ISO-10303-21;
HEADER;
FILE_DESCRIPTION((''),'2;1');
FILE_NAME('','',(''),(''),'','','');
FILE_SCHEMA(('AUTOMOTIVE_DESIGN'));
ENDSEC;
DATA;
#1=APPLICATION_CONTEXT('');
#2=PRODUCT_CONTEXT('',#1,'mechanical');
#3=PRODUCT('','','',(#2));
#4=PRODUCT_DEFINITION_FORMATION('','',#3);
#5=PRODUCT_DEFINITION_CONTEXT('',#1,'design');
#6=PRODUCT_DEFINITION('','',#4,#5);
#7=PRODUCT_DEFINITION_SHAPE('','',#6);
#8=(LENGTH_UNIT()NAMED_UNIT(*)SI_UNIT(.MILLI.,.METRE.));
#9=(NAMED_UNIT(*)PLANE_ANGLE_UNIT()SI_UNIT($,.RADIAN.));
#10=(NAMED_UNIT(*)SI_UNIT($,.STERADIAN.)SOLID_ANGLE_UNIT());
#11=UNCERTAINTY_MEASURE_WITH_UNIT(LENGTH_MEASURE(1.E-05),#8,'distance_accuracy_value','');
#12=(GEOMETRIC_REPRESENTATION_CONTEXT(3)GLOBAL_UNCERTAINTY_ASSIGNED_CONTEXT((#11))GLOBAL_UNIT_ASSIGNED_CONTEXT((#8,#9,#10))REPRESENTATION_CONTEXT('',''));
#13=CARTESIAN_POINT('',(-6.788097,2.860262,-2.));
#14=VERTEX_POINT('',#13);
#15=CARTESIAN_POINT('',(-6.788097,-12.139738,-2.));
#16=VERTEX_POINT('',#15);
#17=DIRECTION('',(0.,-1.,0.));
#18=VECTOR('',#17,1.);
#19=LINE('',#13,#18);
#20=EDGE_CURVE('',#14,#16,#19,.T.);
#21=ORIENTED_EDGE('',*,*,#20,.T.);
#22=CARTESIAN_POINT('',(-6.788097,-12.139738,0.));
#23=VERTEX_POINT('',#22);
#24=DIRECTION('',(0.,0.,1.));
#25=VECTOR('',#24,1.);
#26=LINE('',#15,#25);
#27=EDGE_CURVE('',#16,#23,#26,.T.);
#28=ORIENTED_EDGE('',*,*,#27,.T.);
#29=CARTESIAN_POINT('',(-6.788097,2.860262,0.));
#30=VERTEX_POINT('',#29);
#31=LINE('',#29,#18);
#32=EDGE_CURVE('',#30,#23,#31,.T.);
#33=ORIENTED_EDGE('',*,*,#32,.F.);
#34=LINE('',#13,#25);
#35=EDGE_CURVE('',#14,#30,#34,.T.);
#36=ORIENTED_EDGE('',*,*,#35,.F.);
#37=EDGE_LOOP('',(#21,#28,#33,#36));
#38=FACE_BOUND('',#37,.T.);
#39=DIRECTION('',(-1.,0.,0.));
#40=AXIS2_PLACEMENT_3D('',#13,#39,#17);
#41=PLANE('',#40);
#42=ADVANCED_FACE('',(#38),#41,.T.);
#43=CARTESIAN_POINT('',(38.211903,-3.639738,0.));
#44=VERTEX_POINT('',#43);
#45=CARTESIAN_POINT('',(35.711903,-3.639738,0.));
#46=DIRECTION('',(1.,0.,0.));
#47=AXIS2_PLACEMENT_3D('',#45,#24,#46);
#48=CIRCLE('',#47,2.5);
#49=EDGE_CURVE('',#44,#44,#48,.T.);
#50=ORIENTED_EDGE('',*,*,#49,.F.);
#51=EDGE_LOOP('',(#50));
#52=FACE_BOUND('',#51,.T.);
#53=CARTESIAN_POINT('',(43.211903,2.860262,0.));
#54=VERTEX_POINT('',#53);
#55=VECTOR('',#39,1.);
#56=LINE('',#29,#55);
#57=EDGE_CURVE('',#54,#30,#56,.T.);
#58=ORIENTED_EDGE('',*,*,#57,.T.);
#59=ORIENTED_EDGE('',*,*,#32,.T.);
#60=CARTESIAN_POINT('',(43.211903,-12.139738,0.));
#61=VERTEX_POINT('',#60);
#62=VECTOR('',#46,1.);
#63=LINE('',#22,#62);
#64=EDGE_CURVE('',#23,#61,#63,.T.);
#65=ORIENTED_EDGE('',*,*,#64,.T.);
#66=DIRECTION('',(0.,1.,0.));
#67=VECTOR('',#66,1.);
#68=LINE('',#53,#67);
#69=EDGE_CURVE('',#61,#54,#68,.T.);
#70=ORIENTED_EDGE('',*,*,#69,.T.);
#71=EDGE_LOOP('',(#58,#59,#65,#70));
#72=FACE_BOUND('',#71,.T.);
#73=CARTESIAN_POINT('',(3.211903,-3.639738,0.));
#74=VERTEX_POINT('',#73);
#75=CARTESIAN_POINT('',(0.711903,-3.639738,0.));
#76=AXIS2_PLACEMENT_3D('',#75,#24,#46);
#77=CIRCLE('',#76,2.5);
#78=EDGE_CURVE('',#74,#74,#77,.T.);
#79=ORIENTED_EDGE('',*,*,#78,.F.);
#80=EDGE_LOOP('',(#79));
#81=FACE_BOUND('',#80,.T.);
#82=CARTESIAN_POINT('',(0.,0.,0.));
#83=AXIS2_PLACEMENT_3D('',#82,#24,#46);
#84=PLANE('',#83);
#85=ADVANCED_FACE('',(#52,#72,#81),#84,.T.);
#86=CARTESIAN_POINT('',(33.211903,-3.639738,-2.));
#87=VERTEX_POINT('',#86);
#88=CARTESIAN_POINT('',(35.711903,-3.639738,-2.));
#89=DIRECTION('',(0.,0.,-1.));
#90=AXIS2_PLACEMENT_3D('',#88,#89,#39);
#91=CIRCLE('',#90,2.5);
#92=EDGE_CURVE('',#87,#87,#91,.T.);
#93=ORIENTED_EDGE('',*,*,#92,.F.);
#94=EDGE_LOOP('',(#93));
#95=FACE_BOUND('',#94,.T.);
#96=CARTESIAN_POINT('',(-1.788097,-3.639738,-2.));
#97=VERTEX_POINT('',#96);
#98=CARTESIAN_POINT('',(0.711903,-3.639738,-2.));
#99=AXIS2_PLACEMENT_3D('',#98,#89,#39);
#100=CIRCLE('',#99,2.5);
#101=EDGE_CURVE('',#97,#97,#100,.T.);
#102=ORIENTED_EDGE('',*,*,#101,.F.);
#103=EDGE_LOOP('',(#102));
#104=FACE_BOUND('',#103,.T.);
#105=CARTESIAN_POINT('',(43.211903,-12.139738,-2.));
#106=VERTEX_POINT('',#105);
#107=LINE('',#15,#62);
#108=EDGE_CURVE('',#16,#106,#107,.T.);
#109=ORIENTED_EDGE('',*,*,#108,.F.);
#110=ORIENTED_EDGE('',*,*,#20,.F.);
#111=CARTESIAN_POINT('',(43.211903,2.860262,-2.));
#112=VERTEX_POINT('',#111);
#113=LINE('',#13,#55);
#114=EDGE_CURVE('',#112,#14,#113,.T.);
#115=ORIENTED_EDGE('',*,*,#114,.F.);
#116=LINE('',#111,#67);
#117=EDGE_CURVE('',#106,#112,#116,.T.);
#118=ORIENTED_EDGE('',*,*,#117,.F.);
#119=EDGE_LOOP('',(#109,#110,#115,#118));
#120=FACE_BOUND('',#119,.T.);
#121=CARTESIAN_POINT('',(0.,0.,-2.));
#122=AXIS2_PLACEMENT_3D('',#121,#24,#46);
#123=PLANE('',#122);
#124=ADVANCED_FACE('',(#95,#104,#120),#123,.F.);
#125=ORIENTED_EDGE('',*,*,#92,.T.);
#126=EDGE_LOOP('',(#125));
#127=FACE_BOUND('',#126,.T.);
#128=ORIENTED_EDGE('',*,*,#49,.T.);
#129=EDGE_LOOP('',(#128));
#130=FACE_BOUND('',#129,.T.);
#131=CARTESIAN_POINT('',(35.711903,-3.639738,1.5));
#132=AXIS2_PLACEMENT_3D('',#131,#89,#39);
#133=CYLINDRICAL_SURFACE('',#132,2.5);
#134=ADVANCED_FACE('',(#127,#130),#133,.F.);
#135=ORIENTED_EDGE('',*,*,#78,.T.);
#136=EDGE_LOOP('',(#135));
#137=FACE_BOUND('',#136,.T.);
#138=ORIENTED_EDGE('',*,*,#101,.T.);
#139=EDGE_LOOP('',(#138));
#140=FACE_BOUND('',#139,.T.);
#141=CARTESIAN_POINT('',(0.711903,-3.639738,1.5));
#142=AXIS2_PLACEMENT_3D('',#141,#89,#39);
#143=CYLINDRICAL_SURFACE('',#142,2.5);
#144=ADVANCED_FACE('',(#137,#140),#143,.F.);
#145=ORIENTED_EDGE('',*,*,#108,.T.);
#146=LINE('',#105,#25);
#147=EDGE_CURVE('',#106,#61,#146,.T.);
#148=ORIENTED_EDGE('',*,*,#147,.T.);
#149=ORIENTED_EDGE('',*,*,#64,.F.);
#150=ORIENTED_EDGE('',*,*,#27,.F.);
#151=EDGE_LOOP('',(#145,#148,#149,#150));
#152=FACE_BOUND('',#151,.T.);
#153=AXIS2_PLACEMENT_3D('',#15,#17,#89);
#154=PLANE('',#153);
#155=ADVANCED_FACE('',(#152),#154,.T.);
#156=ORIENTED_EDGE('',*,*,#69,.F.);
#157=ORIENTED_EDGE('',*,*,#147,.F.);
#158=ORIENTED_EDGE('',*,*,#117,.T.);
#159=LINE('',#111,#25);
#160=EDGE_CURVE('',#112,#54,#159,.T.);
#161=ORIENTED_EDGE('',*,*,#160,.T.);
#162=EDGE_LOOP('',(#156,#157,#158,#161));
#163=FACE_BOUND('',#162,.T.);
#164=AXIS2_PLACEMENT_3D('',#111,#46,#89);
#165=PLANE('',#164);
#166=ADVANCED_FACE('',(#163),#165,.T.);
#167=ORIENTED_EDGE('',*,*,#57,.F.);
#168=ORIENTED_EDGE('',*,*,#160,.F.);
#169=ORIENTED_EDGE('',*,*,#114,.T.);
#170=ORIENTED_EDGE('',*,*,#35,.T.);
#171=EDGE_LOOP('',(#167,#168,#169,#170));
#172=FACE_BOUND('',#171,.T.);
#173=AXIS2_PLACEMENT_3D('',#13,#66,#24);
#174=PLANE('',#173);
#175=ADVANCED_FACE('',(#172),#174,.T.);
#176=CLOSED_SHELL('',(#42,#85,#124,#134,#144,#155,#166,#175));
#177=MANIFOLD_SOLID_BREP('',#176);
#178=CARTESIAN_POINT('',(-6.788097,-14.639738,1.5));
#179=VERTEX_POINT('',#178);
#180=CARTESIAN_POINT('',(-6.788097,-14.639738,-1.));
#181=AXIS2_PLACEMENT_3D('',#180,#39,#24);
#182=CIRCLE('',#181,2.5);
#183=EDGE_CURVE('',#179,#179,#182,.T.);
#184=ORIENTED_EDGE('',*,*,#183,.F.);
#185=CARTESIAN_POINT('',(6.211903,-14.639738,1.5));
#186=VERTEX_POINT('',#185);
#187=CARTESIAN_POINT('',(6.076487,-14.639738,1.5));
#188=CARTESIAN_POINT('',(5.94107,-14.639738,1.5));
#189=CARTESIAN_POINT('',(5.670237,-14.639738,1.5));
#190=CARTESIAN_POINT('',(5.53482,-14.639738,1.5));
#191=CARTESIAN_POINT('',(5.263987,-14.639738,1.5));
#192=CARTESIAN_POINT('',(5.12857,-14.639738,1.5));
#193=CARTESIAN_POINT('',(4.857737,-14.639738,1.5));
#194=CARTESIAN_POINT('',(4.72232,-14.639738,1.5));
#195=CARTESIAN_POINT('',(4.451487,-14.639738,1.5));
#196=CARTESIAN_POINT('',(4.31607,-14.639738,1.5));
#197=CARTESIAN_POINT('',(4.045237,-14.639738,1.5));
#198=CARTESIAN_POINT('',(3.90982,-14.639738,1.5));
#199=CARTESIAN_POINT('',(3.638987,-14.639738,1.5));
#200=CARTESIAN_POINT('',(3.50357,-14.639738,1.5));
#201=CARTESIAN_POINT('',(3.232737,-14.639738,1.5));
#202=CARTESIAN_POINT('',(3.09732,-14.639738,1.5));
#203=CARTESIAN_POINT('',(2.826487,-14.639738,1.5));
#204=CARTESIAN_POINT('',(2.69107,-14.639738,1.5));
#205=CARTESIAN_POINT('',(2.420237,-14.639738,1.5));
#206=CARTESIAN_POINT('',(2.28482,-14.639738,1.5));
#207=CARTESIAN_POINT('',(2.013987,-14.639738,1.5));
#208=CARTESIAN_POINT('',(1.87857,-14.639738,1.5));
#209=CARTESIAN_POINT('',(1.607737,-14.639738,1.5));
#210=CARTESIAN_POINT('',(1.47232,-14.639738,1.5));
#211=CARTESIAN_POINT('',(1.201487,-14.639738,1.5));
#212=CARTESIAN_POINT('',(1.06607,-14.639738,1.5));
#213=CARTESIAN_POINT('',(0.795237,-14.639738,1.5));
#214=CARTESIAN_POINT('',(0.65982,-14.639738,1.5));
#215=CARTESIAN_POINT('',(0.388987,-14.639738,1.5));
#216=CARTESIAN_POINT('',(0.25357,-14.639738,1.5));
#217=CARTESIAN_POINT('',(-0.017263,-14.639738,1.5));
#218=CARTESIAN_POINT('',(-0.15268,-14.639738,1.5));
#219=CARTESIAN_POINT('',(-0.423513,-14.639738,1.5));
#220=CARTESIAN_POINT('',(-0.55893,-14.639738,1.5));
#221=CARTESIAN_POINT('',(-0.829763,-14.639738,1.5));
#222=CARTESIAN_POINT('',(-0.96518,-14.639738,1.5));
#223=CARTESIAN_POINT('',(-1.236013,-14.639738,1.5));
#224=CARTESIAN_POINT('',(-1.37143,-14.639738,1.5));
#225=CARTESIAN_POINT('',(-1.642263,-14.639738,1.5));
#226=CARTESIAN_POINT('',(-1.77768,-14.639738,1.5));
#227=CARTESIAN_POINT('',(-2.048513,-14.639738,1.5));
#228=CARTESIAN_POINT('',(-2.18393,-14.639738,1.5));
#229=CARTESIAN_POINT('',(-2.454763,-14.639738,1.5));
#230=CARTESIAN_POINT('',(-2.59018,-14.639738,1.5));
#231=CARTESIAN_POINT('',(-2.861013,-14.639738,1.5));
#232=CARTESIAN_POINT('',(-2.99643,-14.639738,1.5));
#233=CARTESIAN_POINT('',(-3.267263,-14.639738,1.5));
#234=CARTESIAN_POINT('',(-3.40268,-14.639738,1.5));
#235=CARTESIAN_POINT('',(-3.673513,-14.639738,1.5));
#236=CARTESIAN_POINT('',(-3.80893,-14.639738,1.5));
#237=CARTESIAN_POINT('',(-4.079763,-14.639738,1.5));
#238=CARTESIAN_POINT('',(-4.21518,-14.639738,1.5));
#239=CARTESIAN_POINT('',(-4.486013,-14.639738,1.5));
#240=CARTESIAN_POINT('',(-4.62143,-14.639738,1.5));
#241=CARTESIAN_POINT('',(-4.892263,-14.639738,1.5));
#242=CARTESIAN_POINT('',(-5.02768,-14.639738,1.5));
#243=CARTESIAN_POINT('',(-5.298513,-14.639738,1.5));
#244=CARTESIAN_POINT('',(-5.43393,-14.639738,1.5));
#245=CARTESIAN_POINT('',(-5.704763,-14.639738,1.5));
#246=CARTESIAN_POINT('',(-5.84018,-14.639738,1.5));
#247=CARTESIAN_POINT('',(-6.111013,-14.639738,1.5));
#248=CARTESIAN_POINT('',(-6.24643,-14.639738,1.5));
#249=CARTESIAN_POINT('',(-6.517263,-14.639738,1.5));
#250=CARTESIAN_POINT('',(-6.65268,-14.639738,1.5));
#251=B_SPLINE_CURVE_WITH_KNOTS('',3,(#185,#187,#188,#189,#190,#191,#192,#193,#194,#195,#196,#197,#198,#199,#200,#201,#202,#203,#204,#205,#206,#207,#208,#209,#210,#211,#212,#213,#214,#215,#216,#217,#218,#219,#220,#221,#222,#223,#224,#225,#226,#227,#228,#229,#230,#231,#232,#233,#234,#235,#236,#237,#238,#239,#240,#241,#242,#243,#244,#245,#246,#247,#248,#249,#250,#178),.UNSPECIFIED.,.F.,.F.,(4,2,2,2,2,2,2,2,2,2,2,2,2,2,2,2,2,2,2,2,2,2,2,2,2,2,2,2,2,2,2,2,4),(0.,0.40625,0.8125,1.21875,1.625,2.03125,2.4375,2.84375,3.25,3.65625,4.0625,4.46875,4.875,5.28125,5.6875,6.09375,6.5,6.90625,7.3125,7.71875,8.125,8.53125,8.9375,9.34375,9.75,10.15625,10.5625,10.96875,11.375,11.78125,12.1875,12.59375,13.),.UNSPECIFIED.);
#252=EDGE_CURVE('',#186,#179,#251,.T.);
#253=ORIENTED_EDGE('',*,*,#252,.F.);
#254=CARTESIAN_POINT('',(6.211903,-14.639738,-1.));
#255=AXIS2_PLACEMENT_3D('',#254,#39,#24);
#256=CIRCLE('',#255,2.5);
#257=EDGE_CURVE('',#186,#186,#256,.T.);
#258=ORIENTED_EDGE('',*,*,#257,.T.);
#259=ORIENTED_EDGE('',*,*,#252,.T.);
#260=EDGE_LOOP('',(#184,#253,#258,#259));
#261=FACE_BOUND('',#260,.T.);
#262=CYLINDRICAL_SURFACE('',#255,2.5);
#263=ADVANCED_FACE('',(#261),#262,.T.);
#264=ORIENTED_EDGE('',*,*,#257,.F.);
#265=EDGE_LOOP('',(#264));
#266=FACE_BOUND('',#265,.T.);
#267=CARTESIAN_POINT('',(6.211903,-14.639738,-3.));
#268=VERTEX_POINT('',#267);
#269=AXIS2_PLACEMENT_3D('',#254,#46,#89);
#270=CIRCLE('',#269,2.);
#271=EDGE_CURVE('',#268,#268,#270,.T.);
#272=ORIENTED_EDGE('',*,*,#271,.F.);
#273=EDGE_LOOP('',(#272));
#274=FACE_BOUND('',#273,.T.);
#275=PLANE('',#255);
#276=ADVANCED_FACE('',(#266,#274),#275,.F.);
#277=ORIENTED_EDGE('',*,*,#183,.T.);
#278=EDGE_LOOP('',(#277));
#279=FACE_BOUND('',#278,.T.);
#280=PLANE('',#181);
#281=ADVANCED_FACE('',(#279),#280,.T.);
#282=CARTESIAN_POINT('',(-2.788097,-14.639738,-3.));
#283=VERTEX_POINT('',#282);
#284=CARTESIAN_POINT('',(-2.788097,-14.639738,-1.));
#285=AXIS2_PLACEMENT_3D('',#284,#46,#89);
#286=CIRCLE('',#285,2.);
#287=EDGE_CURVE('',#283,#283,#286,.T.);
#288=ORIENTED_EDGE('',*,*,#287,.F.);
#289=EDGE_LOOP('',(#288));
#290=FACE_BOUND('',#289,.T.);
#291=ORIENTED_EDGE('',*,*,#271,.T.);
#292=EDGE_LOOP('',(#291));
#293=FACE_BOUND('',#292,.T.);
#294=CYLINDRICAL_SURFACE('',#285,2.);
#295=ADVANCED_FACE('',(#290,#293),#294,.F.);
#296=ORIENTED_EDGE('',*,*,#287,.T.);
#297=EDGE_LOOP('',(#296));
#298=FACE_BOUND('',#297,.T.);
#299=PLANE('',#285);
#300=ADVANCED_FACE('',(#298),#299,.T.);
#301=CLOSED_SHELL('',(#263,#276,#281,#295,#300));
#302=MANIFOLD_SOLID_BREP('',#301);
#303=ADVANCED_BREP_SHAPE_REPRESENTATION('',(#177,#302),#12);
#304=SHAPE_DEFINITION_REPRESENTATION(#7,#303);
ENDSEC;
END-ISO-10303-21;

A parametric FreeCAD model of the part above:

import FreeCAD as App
import Part
import Sketcher

V = App.Vector
Q = App.Units.Quantity


def add_polygon(sketch, points):
    """Adds a closed chain of lines whose ends are joined by coincident constraints."""
    first, n = sketch.GeometryCount, len(points)
    for a, b in zip(points, points[1:] + points[:1]):
        sketch.addGeometry(Part.LineSegment(App.Vector(*a, 0), App.Vector(*b, 0)), False)
    for i in range(n):
        sketch.addConstraint(Sketcher.Constraint("Coincident", first + i, 2, first + (i + 1) % n, 1))

doc = App.newDocument("Part")
body = doc.addObject("PartDesign::Body", "Body")

# Sketch on XY plane
sketch1 = body.newObject("Sketcher::SketchObject", "Sketch")
sketch1.AttachmentSupport = (doc.getObject("XY_Plane"), [""])
sketch1.MapMode = "FlatFace"
add_polygon(sketch1, [(-7, 3), (-7, -12), (43, -12), (43, 3)])  # lines 0-3
sketch1.addConstraint(Sketcher.Constraint("Vertical", 0))
sketch1.addConstraint(Sketcher.Constraint("Horizontal", 1))
sketch1.addConstraint(Sketcher.Constraint("Vertical", 2))
sketch1.addConstraint(Sketcher.Constraint("Horizontal", 3))
sketch1.addConstraint(Sketcher.Constraint("DistanceX", 1, 1, 1, 2, Q("50 mm")))
sketch1.addConstraint(Sketcher.Constraint("DistanceY", 0, 2, 0, 1, Q("15 mm")))
sketch1.addConstraint(Sketcher.Constraint("DistanceX", 0, 2, -1, 1, Q("6.788097 mm")))
sketch1.addConstraint(Sketcher.Constraint("DistanceY", 0, 2, -1, 1, Q("12.139738 mm")))
pad1 = body.newObject("PartDesign::Pad", "Pad")
pad1.Profile = sketch1
pad1.Length = 2
pad1.Reversed = True

# Sketch on XY plane
sketch2 = body.newObject("Sketcher::SketchObject", "Sketch001")
sketch2.AttachmentSupport = (doc.getObject("XY_Plane"), [""])
sketch2.MapMode = "FlatFace"
sketch2.AttachmentOffset = App.Placement(V(0, 0, -2), App.Rotation())
sketch2.addGeometry(Part.Circle(V(35.7, -3.6, 0), V(0, 0, 1), 2.5), False)
sketch2.addGeometry(Part.Circle(V(0.7, -3.6, 0), V(0, 0, 1), 2.5), False)
sketch2.addConstraint(Sketcher.Constraint("Equal", 0, 1))
sketch2.addConstraint(Sketcher.Constraint("Horizontal", 0, 3, 1, 3))
sketch2.addConstraint(Sketcher.Constraint("Diameter", 0, Q("5 mm")))
sketch2.addConstraint(Sketcher.Constraint("DistanceX", 1, 3, 0, 3, Q("35 mm")))
sketch2.addConstraint(Sketcher.Constraint("DistanceX", -1, 1, 0, 3, Q("35.711903 mm")))
sketch2.addConstraint(Sketcher.Constraint("DistanceY", 0, 3, -1, 1, Q("3.639738 mm")))
pocket1 = body.newObject("PartDesign::Pocket", "Pocket")
pocket1.Profile = sketch2
pocket1.Type = "ThroughAll"
pocket1.Reversed = True
body2 = doc.addObject("PartDesign::Body", "Body001")

# Sketch on YZ plane
sketch3 = body2.newObject("Sketcher::SketchObject", "Sketch002")
sketch3.AttachmentSupport = (doc.getObject("YZ_Plane001"), [""])
sketch3.MapMode = "FlatFace"
sketch3.AttachmentOffset = App.Placement(V(0, 0, -6.788097), App.Rotation())
sketch3.addGeometry(Part.Circle(V(-14.6, -1, 0), V(0, 0, 1), 2.5), False)
sketch3.addConstraint(Sketcher.Constraint("Diameter", 0, Q("5 mm")))
sketch3.addConstraint(Sketcher.Constraint("DistanceY", 0, 3, -1, 1, Q("1 mm")))
sketch3.addConstraint(Sketcher.Constraint("DistanceX", 0, 3, -1, 1, Q("14.639738 mm")))
pad2 = body2.newObject("PartDesign::Pad", "Pad001")
pad2.Profile = sketch3
pad2.Length = 13

# Sketch on YZ plane
sketch4 = body2.newObject("Sketcher::SketchObject", "Sketch003")
sketch4.AttachmentSupport = (doc.getObject("YZ_Plane001"), [""])
sketch4.MapMode = "FlatFace"
sketch4.AttachmentOffset = App.Placement(V(0, 0, 6.211903), App.Rotation())
sketch4.addGeometry(Part.Circle(V(-14.6, -1, 0), V(0, 0, 1), 2), False)
sketch4.addConstraint(Sketcher.Constraint("Diameter", 0, Q("4 mm")))
sketch4.addConstraint(Sketcher.Constraint("DistanceY", 0, 3, -1, 1, Q("1 mm")))
sketch4.addConstraint(Sketcher.Constraint("DistanceX", 0, 3, -1, 1, Q("14.639738 mm")))
pocket2 = body2.newObject("PartDesign::Pocket", "Pocket001")
pocket2.Profile = sketch4
pocket2.Length = 9

doc.recompute()
